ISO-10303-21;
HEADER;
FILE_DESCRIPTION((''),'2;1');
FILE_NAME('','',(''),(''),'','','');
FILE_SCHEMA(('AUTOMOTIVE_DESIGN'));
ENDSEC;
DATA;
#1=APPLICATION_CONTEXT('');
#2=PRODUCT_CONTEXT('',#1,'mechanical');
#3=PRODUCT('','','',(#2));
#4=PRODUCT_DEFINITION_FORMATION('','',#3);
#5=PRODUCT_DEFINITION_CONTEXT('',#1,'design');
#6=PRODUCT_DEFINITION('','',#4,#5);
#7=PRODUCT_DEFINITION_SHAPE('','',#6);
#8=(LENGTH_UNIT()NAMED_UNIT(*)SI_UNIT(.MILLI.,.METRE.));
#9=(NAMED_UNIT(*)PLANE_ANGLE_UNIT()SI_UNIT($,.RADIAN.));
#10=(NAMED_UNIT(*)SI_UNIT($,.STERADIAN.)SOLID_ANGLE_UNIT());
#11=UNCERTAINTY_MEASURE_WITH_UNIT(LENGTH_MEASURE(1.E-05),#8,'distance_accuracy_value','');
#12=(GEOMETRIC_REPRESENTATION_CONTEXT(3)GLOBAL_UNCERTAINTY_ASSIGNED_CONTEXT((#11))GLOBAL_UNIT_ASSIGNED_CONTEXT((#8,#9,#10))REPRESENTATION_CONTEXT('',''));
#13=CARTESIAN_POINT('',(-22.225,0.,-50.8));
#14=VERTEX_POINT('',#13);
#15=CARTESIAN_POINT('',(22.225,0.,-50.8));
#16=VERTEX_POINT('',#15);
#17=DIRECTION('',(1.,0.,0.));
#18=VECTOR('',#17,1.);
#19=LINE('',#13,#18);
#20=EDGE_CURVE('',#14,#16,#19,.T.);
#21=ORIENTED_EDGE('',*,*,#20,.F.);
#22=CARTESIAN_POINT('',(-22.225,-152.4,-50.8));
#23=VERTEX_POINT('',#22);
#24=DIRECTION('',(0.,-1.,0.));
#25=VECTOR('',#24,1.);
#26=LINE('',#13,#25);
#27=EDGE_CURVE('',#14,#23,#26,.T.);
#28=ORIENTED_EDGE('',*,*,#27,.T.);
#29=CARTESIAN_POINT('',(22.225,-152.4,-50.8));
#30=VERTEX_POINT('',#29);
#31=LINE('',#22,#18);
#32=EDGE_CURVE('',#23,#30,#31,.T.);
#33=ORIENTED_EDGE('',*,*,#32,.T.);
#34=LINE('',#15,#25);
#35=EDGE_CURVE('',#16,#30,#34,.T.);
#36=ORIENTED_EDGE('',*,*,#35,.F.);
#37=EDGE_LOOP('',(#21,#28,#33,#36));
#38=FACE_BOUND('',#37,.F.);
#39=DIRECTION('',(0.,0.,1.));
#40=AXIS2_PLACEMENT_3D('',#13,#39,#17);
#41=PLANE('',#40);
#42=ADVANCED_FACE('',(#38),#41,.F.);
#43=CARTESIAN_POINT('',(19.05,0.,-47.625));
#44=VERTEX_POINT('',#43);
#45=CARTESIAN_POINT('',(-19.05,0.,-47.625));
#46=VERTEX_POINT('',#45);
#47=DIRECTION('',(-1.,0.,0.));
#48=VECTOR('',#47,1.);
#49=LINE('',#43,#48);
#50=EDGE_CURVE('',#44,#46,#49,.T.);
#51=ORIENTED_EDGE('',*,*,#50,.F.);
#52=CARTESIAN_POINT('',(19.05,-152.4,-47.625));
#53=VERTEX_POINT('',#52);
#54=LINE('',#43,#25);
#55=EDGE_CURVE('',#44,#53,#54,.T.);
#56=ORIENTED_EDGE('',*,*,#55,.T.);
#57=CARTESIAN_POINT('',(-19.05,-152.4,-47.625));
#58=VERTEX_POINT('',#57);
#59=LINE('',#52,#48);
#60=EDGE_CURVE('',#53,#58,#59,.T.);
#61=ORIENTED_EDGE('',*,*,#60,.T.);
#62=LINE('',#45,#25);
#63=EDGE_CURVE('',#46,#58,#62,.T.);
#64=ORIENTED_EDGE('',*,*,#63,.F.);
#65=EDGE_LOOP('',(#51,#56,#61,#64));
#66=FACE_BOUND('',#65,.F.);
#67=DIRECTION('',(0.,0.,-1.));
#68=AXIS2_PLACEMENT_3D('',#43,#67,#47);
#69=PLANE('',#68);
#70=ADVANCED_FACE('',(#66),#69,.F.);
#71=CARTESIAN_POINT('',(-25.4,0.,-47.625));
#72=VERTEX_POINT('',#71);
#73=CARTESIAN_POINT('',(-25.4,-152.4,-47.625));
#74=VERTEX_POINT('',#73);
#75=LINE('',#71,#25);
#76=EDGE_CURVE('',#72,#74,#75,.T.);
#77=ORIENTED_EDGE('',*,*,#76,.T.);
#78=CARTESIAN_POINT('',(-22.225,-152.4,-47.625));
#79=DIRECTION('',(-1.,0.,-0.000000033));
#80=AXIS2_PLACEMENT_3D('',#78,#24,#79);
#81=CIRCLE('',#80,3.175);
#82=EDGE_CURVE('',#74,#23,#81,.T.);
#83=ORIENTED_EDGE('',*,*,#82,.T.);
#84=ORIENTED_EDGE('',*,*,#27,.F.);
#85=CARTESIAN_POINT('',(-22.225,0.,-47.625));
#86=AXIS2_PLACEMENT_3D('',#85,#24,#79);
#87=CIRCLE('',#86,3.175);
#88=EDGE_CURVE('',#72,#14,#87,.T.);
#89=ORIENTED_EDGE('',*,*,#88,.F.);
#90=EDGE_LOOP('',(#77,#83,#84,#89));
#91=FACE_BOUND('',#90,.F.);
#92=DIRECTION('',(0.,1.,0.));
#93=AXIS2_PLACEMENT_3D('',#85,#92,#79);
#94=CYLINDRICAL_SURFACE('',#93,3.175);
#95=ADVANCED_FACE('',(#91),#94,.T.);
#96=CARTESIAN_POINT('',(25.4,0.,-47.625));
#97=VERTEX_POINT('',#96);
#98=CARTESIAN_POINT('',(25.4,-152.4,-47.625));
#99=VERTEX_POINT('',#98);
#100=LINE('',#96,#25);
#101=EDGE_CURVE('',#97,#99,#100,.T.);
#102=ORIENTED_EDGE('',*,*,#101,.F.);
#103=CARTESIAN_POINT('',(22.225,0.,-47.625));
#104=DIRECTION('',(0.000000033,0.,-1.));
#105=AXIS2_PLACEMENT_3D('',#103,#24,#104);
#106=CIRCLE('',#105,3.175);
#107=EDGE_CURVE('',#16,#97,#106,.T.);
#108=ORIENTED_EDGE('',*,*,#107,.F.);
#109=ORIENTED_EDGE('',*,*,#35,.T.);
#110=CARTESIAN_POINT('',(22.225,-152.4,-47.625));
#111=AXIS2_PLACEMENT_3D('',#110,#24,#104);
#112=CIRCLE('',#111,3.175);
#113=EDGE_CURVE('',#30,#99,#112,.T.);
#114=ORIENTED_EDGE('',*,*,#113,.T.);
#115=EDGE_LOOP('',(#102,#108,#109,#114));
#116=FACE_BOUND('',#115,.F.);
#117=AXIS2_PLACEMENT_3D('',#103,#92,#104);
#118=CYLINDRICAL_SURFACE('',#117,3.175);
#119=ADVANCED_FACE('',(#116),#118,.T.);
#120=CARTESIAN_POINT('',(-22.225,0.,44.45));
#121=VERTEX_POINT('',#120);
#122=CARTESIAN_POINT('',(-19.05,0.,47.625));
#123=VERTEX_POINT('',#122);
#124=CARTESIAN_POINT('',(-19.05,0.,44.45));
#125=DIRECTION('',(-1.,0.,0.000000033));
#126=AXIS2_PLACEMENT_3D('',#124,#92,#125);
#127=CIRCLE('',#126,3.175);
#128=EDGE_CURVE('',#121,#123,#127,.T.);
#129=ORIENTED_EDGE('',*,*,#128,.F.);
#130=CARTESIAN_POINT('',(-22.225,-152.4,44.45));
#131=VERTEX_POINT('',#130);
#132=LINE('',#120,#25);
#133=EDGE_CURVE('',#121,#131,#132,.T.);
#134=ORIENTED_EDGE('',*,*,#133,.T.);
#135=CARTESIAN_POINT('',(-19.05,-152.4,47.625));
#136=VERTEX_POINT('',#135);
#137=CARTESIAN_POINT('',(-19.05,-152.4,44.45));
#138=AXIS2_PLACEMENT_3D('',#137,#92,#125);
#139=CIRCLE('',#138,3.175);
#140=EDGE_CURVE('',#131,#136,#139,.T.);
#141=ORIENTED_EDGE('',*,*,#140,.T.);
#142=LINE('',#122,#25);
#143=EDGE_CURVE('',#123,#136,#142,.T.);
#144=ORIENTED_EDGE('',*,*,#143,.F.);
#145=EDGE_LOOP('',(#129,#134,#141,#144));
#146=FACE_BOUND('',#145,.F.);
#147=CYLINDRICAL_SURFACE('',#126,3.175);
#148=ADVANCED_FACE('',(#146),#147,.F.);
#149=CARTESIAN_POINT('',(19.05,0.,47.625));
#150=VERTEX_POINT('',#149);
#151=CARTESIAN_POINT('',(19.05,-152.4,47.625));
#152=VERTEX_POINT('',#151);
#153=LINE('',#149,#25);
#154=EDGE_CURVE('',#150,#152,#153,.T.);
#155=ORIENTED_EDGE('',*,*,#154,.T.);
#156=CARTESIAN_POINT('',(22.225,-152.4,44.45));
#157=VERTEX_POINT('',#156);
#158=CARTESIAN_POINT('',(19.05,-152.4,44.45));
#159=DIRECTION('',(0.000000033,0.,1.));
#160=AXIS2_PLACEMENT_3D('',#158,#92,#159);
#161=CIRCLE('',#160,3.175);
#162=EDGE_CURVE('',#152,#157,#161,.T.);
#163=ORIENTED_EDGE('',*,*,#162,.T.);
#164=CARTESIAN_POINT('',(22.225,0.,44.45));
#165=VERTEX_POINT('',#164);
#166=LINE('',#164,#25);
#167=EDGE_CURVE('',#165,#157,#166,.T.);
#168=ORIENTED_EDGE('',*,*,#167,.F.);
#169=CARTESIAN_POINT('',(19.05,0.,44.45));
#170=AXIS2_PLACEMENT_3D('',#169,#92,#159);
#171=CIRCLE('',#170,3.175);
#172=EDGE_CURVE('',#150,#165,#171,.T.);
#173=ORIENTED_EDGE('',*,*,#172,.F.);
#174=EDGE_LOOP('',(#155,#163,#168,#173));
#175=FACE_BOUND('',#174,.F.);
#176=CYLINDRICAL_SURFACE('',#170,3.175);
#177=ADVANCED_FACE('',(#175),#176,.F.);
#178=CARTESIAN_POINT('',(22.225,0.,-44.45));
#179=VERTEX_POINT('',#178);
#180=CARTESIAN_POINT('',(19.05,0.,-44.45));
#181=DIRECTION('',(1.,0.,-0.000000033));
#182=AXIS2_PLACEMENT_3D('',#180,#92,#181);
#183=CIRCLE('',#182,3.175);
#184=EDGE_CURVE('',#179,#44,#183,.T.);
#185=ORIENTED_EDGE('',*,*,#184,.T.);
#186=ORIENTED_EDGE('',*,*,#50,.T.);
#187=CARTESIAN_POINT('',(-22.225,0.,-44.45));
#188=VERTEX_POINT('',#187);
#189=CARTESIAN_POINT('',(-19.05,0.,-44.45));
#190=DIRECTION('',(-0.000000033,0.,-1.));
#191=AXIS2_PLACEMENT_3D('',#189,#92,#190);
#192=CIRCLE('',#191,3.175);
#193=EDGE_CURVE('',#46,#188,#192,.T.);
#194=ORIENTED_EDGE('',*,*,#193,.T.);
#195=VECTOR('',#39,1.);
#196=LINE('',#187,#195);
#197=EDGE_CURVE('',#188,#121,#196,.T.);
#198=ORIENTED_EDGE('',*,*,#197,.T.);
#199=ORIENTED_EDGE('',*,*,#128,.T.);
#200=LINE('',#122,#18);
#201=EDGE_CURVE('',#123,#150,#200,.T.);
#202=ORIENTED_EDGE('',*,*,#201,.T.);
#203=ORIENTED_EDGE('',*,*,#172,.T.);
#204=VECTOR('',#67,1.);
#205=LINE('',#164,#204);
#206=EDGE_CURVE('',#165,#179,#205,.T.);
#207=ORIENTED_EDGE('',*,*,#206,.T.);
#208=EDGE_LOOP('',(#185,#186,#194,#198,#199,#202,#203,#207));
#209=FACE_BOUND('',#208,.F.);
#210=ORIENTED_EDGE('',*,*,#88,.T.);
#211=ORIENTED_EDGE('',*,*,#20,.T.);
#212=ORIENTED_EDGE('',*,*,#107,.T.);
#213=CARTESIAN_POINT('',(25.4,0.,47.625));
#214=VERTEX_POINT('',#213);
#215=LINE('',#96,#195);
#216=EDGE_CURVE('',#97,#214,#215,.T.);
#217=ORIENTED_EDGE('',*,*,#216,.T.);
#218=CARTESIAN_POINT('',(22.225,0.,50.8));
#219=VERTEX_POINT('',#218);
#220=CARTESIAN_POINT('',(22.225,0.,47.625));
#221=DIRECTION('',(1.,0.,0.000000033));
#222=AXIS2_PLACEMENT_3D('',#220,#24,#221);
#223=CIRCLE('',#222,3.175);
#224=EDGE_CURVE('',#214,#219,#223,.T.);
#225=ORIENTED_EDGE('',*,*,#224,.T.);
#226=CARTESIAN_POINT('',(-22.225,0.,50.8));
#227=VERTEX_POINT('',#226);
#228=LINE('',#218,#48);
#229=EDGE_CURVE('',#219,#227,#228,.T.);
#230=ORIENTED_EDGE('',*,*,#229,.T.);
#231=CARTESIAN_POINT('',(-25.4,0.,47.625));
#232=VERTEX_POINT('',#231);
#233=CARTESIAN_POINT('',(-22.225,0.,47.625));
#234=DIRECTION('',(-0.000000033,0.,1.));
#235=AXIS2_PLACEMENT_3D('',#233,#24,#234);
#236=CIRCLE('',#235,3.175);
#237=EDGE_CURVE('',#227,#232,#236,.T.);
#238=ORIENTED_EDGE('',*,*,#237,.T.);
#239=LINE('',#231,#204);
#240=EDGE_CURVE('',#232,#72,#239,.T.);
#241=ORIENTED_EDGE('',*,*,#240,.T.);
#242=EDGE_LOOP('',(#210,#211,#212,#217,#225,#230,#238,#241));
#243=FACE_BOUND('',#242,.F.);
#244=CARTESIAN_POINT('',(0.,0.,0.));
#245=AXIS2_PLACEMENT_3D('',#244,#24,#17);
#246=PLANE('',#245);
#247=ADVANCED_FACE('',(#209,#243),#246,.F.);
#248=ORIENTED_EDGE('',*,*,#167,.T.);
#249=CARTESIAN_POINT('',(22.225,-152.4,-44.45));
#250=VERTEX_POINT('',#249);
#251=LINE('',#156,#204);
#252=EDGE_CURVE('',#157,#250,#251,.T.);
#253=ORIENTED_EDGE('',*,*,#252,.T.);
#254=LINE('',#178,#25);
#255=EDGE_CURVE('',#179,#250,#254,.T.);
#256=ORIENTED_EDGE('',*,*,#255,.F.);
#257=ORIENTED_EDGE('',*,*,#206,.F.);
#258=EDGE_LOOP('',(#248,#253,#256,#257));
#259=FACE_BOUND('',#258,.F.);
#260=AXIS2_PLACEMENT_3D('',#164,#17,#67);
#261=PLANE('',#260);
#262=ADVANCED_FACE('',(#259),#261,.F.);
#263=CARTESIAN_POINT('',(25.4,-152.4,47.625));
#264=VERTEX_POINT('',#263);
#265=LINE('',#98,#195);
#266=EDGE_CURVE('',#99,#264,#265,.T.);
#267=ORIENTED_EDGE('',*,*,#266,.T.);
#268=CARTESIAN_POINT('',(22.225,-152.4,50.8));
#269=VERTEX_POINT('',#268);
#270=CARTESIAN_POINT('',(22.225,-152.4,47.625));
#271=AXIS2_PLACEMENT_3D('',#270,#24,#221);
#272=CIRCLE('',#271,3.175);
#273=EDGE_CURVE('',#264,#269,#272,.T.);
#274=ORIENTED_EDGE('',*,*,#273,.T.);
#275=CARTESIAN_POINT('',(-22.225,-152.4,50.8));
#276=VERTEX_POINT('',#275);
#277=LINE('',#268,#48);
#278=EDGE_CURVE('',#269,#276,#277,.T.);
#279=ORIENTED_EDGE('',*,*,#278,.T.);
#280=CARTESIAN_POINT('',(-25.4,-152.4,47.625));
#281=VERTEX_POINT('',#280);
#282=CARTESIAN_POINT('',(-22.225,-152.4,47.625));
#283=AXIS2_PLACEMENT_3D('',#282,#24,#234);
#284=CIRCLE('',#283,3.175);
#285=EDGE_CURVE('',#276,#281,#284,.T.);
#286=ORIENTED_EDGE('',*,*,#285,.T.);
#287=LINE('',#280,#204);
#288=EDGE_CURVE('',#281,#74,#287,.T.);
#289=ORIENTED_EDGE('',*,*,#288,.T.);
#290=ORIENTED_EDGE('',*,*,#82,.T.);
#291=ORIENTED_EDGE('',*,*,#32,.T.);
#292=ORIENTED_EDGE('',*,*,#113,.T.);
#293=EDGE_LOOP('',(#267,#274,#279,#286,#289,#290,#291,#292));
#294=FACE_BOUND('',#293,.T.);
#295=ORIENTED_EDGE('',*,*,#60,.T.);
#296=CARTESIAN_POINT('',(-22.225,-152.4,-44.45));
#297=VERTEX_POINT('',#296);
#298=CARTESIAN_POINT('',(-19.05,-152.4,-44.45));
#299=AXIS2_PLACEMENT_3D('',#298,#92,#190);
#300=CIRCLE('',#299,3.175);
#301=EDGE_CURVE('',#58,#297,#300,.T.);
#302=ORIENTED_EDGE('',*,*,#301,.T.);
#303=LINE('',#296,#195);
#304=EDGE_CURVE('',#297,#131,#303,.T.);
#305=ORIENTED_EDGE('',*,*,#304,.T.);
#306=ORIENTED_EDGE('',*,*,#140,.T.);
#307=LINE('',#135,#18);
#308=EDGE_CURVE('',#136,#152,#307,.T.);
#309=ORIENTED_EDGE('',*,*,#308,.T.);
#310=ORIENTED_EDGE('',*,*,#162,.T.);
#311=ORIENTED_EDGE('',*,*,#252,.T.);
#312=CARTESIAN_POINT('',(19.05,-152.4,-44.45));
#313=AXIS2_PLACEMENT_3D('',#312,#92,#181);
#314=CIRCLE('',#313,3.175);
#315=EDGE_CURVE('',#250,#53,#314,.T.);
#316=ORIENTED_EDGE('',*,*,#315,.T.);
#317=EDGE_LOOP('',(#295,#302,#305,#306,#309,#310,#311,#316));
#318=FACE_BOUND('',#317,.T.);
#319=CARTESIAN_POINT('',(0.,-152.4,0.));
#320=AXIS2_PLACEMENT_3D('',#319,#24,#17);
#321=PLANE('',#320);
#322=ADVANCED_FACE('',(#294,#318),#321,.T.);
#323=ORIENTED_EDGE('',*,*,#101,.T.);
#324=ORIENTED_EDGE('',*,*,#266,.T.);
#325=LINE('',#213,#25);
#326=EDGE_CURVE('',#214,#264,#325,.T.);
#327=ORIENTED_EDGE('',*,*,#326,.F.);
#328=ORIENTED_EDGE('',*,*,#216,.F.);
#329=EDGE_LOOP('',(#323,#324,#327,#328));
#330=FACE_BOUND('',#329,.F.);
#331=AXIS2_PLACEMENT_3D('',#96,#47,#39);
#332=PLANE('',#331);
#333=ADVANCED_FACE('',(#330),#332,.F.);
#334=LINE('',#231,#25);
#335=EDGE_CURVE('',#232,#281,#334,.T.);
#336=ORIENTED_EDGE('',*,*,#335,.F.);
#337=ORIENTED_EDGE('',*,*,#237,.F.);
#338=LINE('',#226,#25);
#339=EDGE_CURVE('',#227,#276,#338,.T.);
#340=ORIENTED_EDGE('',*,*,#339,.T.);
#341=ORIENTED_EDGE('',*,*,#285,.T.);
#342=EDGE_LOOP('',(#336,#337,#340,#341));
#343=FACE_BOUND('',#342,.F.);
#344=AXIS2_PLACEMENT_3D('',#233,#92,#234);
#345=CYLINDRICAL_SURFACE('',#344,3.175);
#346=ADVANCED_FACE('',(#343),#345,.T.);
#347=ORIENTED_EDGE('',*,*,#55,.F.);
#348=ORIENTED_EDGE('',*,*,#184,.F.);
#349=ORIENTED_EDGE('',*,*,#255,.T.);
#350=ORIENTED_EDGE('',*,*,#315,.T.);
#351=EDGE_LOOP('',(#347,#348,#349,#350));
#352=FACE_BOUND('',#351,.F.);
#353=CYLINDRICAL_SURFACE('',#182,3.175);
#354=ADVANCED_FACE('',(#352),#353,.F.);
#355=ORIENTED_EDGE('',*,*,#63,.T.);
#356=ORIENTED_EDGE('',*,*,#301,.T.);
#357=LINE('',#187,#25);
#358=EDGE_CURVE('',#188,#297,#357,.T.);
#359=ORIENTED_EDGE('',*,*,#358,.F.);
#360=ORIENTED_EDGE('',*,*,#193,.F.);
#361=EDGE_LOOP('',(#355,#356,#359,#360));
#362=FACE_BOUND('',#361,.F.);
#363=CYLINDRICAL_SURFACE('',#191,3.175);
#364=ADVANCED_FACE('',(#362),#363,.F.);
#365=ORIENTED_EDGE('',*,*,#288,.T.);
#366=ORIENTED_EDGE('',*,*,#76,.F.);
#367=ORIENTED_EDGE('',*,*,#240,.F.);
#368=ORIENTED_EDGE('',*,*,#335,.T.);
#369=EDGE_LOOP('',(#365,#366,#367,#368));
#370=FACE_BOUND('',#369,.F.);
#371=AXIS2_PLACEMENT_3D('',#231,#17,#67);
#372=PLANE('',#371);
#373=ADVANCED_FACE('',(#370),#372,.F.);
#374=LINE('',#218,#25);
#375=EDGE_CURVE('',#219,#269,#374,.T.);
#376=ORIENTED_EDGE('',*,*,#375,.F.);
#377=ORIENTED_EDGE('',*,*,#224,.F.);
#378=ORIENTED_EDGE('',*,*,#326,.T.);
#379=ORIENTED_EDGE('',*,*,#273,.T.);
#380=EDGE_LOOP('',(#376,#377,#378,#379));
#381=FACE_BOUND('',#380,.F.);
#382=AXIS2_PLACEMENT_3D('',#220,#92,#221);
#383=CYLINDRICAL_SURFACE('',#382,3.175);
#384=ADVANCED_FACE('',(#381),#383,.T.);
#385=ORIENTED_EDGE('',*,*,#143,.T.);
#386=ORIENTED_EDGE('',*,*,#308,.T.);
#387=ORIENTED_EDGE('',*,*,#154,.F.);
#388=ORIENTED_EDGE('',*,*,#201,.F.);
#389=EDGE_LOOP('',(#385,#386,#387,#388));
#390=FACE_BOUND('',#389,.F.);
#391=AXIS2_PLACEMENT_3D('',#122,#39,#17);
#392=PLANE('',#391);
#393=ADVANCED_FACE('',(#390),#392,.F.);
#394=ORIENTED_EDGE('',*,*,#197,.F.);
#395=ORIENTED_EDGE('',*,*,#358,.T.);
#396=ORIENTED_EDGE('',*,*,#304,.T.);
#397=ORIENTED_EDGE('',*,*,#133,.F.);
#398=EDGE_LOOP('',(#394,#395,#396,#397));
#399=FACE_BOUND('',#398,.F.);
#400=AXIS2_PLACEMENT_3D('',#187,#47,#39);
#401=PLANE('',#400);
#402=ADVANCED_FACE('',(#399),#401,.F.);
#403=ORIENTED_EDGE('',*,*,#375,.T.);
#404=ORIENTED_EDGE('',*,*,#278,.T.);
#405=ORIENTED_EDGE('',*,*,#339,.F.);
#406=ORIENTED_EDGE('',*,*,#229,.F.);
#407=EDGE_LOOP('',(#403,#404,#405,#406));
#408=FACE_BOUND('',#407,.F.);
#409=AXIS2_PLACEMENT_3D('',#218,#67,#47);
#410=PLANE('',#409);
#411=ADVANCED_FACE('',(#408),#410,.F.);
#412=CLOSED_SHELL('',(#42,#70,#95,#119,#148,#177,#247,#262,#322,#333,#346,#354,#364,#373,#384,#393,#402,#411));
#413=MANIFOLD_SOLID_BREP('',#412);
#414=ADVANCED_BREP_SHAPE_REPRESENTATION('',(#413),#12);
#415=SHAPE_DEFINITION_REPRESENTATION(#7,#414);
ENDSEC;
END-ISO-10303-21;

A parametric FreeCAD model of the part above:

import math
import FreeCAD as App
import Part
import Sketcher
Q = App.Units.Quantity

doc = App.newDocument("Part")
body = doc.addObject("PartDesign::Body", "Body")

sketch1 = doc.addObject("Sketcher::SketchObject", "Sketch")
body.addObject(sketch1)
sketch1.AttachmentSupport = (doc.XZ_Plane, [""])
sketch1.MapMode = "FlatFace"
sketch1.addGeometry([
    Part.ArcOfCircle(Part.Circle(App.Vector(22.2, 47.6, 0), App.Vector(0, 0, 1), 3.2), math.radians(0), math.radians(90)),
    Part.LineSegment(App.Vector(22.2, 50.8, 0), App.Vector(-22.2, 50.8, 0)),
    Part.ArcOfCircle(Part.Circle(App.Vector(-22.2, 47.6, 0), App.Vector(0, 0, 1), 3.2), math.radians(90), math.radians(180)),
    Part.LineSegment(App.Vector(-25.4, 47.6, 0), App.Vector(-25.4, -47.6, 0)),
    Part.ArcOfCircle(Part.Circle(App.Vector(-22.2, -47.6, 0), App.Vector(0, 0, 1), 3.2), math.radians(-180), math.radians(-90)),
    Part.LineSegment(App.Vector(-22.2, -50.8, 0), App.Vector(22.2, -50.8, 0)),
    Part.ArcOfCircle(Part.Circle(App.Vector(22.2, -47.6, 0), App.Vector(0, 0, 1), 3.2), math.radians(-90), math.radians(0)),
    Part.LineSegment(App.Vector(25.4, -47.6, 0), App.Vector(25.4, 47.6, 0)),
    Part.ArcOfCircle(Part.Circle(App.Vector(-19, 44.4, 0), App.Vector(0, 0, 1), 3.2), math.radians(90), math.radians(180)),
    Part.LineSegment(App.Vector(-19.1, 47.6, 0), App.Vector(19.1, 47.6, 0)),
    Part.ArcOfCircle(Part.Circle(App.Vector(19, 44.4, 0), App.Vector(0, 0, 1), 3.2), math.radians(0), math.radians(90)),
    Part.LineSegment(App.Vector(22.2, 44.5, 0), App.Vector(22.2, -44.5, 0)),
    Part.ArcOfCircle(Part.Circle(App.Vector(19, -44.4, 0), App.Vector(0, 0, 1), 3.2), math.radians(-90), math.radians(0)),
    Part.LineSegment(App.Vector(19.1, -47.6, 0), App.Vector(-19.1, -47.6, 0)),
    Part.ArcOfCircle(Part.Circle(App.Vector(-19, -44.4, 0), App.Vector(0, 0, 1), 3.2), math.radians(-180), math.radians(-90)),
    Part.LineSegment(App.Vector(-22.2, -44.5, 0), App.Vector(-22.2, 44.5, 0)),
], False)
sketch1.addConstraint([
    Sketcher.Constraint("Tangent", 0, 2, 1, 1),
    Sketcher.Constraint("Tangent", 1, 2, 2, 1),
    Sketcher.Constraint("Tangent", 2, 2, 3, 1),
    Sketcher.Constraint("Tangent", 3, 2, 4, 1),
    Sketcher.Constraint("Tangent", 4, 2, 5, 1),
    Sketcher.Constraint("Tangent", 5, 2, 6, 1),
    Sketcher.Constraint("Tangent", 6, 2, 7, 1),
    Sketcher.Constraint("Tangent", 7, 2, 0, 1),
    Sketcher.Constraint("Tangent", 8, 1, 9, 1),
    Sketcher.Constraint("Tangent", 9, 2, 10, 2),
    Sketcher.Constraint("Tangent", 10, 1, 11, 1),
    Sketcher.Constraint("Tangent", 11, 2, 12, 2),
    Sketcher.Constraint("Tangent", 12, 1, 13, 1),
    Sketcher.Constraint("Tangent", 13, 2, 14, 2),
    Sketcher.Constraint("Tangent", 14, 1, 15, 1),
    Sketcher.Constraint("Tangent", 15, 2, 8, 2),
    Sketcher.Constraint("Horizontal", 1),
    Sketcher.Constraint("Vertical", 3),
    Sketcher.Constraint("Horizontal", 5),
    Sketcher.Constraint("Vertical", 7),
    Sketcher.Constraint("Horizontal", 9),
    Sketcher.Constraint("Vertical", 11),
    Sketcher.Constraint("Horizontal", 13),
    Sketcher.Constraint("Vertical", 15),
    Sketcher.Constraint("Equal", 0, 2),
    Sketcher.Constraint("Equal", 2, 4),
    Sketcher.Constraint("Equal", 4, 6),
    Sketcher.Constraint("Equal", 6, 8),
    Sketcher.Constraint("Equal", 8, 10),
    Sketcher.Constraint("Equal", 10, 12),
    Sketcher.Constraint("Equal", 12, 14),
    Sketcher.Constraint("Symmetric", 0, 3, 4, 3, -1, 1),
    Sketcher.Constraint("Symmetric", 8, 3, 12, 3, -1, 1),
    Sketcher.Constraint("Horizontal", 7, 2, 8, 1),
    Sketcher.Constraint("Vertical", 5, 2, 10, 1),
    Sketcher.Constraint("DistanceX", 9, 1, 9, 2, Q("1.5 in")),
    Sketcher.Constraint("DistanceY", 11, 2, 11, 1, Q("3.5 in")),
    Sketcher.Constraint("DistanceY", -1, 1, 0, 2, Q("2 in")),
])
pad1 = doc.addObject("PartDesign::Pad", "Pad")
body.addObject(pad1)
pad1.Profile = sketch1
pad1.Length = Q("6 in")

doc.recompute()
